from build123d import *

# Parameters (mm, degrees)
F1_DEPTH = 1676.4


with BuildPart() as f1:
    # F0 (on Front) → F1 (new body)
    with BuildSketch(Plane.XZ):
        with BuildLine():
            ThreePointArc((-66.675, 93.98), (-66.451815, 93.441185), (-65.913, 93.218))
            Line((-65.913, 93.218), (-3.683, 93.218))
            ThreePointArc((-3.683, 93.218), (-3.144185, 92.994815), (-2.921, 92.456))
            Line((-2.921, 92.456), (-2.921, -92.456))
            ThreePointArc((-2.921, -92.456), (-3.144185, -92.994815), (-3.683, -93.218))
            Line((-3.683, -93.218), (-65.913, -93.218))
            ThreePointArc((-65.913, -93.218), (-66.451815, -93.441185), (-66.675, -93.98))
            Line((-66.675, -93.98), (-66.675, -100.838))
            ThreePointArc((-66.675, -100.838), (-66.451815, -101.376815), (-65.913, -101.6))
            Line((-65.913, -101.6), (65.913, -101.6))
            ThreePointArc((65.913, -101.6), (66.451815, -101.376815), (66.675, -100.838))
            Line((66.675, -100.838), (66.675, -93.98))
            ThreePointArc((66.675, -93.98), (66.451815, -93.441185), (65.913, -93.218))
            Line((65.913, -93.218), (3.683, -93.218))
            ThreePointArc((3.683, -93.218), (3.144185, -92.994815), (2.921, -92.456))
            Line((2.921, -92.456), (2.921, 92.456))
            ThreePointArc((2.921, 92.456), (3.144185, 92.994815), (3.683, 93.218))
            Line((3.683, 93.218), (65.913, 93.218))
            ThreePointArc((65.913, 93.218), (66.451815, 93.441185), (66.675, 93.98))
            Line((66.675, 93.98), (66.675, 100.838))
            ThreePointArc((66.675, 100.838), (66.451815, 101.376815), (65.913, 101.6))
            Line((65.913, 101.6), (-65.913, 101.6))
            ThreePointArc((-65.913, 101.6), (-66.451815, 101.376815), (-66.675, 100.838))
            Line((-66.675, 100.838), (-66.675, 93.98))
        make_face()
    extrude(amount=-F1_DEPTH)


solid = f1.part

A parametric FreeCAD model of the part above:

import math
import FreeCAD as App
import Part
import Sketcher

V = App.Vector
Q = App.Units.Quantity

doc = App.newDocument("Part")
body = doc.addObject("PartDesign::Body", "Body")

# Sketch on XZ plane
sketch1 = doc.addObject("Sketcher::SketchObject", "Sketch")
body.addObject(sketch1)
sketch1.AttachmentSupport = (doc.XZ_Plane, [""])
sketch1.MapMode = "FlatFace"
sketch1.addGeometry([
    Part.ArcOfCircle(Part.Circle(V(-65.9, 94, 0), V(0, 0, 1), 0.8), math.radians(-180), math.radians(-90)),  # 0
    Part.LineSegment(V(-65.9, 93.2, 0), V(-3.7, 93.2, 0)),  # 1
    Part.ArcOfCircle(Part.Circle(V(-3.7, 92.5, 0), V(0, 0, 1), 0.8), math.radians(0), math.radians(90)),  # 2
    Part.LineSegment(V(-2.9, 92.5, 0), V(-2.9, -92.5, 0)),  # 3
    Part.ArcOfCircle(Part.Circle(V(-3.7, -92.5, 0), V(0, 0, 1), 0.8), math.radians(-90), math.radians(0)),  # 4
    Part.LineSegment(V(-3.7, -93.2, 0), V(-65.9, -93.2, 0)),  # 5
    Part.ArcOfCircle(Part.Circle(V(-65.9, -94, 0), V(0, 0, 1), 0.8), math.radians(90), math.radians(180)),  # 6
    Part.LineSegment(V(-66.7, -94, 0), V(-66.7, -100.8, 0)),  # 7
    Part.ArcOfCircle(Part.Circle(V(-65.9, -100.8, 0), V(0, 0, 1), 0.8), math.radians(-180), math.radians(-90)),  # 8
    Part.LineSegment(V(-65.9, -101.6, 0), V(65.9, -101.6, 0)),  # 9
    Part.ArcOfCircle(Part.Circle(V(65.9, -100.8, 0), V(0, 0, 1), 0.8), math.radians(-90), math.radians(0)),  # 10
    Part.LineSegment(V(66.7, -100.8, 0), V(66.7, -94, 0)),  # 11
    Part.ArcOfCircle(Part.Circle(V(65.9, -94, 0), V(0, 0, 1), 0.8), math.radians(0), math.radians(90)),  # 12
    Part.LineSegment(V(65.9, -93.2, 0), V(3.7, -93.2, 0)),  # 13
    Part.ArcOfCircle(Part.Circle(V(3.7, -92.5, 0), V(0, 0, 1), 0.8), math.radians(-180), math.radians(-90)),  # 14
    Part.LineSegment(V(2.9, -92.5, 0), V(2.9, 92.5, 0)),  # 15
    Part.ArcOfCircle(Part.Circle(V(3.7, 92.5, 0), V(0, 0, 1), 0.8), math.radians(90), math.radians(180)),  # 16
    Part.LineSegment(V(3.7, 93.2, 0), V(65.9, 93.2, 0)),  # 17
    Part.ArcOfCircle(Part.Circle(V(65.9, 94, 0), V(0, 0, 1), 0.8), math.radians(-90), math.radians(0)),  # 18
    Part.LineSegment(V(66.7, 94, 0), V(66.7, 100.8, 0)),  # 19
    Part.ArcOfCircle(Part.Circle(V(65.9, 100.8, 0), V(0, 0, 1), 0.8), math.radians(0), math.radians(90)),  # 20
    Part.LineSegment(V(65.9, 101.6, 0), V(-65.9, 101.6, 0)),  # 21
    Part.ArcOfCircle(Part.Circle(V(-65.9, 100.8, 0), V(0, 0, 1), 0.8), math.radians(90), math.radians(180)),  # 22
    Part.LineSegment(V(-66.7, 100.8, 0), V(-66.7, 94, 0)),  # 23
], False)
sketch1.addConstraint([
    Sketcher.Constraint("Tangent", 0, 2, 1, 1),
    Sketcher.Constraint("Tangent", 1, 2, 2, 2),
    Sketcher.Constraint("Tangent", 2, 1, 3, 1),
    Sketcher.Constraint("Tangent", 3, 2, 4, 2),
    Sketcher.Constraint("Tangent", 4, 1, 5, 1),
    Sketcher.Constraint("Tangent", 5, 2, 6, 1),
    Sketcher.Constraint("Tangent", 6, 2, 7, 1),
    Sketcher.Constraint("Tangent", 7, 2, 8, 1),
    Sketcher.Constraint("Tangent", 8, 2, 9, 1),
    Sketcher.Constraint("Tangent", 9, 2, 10, 1),
    Sketcher.Constraint("Tangent", 10, 2, 11, 1),
    Sketcher.Constraint("Tangent", 11, 2, 12, 1),
    Sketcher.Constraint("Tangent", 12, 2, 13, 1),
    Sketcher.Constraint("Tangent", 13, 2, 14, 2),
    Sketcher.Constraint("Tangent", 14, 1, 15, 1),
    Sketcher.Constraint("Tangent", 15, 2, 16, 2),
    Sketcher.Constraint("Tangent", 16, 1, 17, 1),
    Sketcher.Constraint("Tangent", 17, 2, 18, 1),
    Sketcher.Constraint("Tangent", 18, 2, 19, 1),
    Sketcher.Constraint("Tangent", 19, 2, 20, 1),
    Sketcher.Constraint("Tangent", 20, 2, 21, 1),
    Sketcher.Constraint("Tangent", 21, 2, 22, 1),
    Sketcher.Constraint("Tangent", 22, 2, 23, 1),
    Sketcher.Constraint("Tangent", 23, 2, 0, 1),
    Sketcher.Constraint("Horizontal", 1),
    Sketcher.Constraint("Vertical", 3),
    Sketcher.Constraint("Horizontal", 5),
    Sketcher.Constraint("Vertical", 7),
    Sketcher.Constraint("Horizontal", 9),
    Sketcher.Constraint("Vertical", 11),
    Sketcher.Constraint("Horizontal", 13),
    Sketcher.Constraint("Vertical", 15),
    Sketcher.Constraint("Horizontal", 17),
    Sketcher.Constraint("Vertical", 19),
    Sketcher.Constraint("Horizontal", 21),
    Sketcher.Constraint("Vertical", 23),
    Sketcher.Constraint("Equal", 0, 2),
    Sketcher.Constraint("Equal", 2, 4),
    Sketcher.Constraint("Equal", 4, 6),
    Sketcher.Constraint("Equal", 6, 8),
    Sketcher.Constraint("Equal", 8, 10),
    Sketcher.Constraint("Equal", 10, 12),
    Sketcher.Constraint("Equal", 12, 14),
    Sketcher.Constraint("Equal", 14, 16),
    Sketcher.Constraint("Equal", 16, 18),
    Sketcher.Constraint("Equal", 18, 20),
    Sketcher.Constraint("Equal", 20, 22),
    Sketcher.Constraint("Symmetric", 0, 3, 12, 3, -1, 1),
    Sketcher.Constraint("Symmetric", 4, 3, 16, 3, -1, 1),
    Sketcher.Constraint("Symmetric", 8, 3, 20, 3, -1, 1),
    Sketcher.Constraint("Symmetric", 6, 3, 12, 3, -2),
    Sketcher.Constraint("Radius", 0, Q("0.03 in")),
    Sketcher.Constraint("DistanceY", 8, 2, -1, 1, Q("4 in")),
    Sketcher.Constraint("DistanceX", 1, 1, 1, 2, Q("2.45 in")),
    Sketcher.Constraint("DistanceX", 9, 1, 9, 2, Q("5.19 in")),
    Sketcher.Constraint("DistanceY", 3, 2, 3, 1, Q("7.28 in")),
])
pad1 = doc.addObject("PartDesign::Pad", "Pad")
body.addObject(pad1)
pad1.Profile = sketch1
pad1.Length = Q("66 in")
pad1.Reversed = True

doc.recompute()
